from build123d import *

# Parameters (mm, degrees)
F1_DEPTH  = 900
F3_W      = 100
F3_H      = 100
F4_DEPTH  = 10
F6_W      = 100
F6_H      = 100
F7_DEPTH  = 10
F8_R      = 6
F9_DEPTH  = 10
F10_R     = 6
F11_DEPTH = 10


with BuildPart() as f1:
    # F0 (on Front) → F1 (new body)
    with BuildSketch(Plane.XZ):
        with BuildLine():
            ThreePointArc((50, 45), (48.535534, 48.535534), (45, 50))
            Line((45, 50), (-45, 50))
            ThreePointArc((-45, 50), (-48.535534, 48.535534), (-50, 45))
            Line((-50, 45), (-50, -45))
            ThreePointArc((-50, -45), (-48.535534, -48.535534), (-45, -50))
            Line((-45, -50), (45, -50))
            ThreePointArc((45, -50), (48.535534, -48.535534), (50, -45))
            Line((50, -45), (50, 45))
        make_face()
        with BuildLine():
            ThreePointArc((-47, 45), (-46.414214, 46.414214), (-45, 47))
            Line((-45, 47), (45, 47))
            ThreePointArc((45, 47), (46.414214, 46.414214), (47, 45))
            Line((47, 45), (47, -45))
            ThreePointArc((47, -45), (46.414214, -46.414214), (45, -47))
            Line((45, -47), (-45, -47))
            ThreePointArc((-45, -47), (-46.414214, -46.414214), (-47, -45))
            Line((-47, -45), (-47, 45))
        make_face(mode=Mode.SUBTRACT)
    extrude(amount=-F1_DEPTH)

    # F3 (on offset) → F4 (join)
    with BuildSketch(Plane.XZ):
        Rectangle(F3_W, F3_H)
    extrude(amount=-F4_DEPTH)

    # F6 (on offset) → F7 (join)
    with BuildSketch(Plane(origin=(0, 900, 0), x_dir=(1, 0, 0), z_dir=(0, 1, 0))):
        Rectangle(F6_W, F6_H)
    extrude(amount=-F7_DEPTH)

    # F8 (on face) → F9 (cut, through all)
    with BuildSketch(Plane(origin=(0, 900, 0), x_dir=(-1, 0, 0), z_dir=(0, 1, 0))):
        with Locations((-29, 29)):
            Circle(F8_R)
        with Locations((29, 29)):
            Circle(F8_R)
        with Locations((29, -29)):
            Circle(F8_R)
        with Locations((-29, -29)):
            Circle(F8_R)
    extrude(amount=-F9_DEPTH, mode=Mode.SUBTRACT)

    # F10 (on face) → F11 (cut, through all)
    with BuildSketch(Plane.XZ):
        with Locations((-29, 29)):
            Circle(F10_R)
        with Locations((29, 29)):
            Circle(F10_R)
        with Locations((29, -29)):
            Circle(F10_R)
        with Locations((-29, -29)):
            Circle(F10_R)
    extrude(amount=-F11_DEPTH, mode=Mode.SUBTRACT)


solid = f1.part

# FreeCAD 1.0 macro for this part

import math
import FreeCAD as App
import Part
import Sketcher
from FreeCAD import Vector
Q = App.Units.Quantity

doc = App.newDocument("Part")
body = doc.addObject("PartDesign::Body", "Body")

sketch1 = body.newObject("Sketcher::SketchObject", "Sketch")
sketch1.AttachmentSupport = (doc.getObject("XZ_Plane"), [""])
sketch1.MapMode = "FlatFace"
sketch1.addGeometry([
    Part.ArcOfCircle(Part.Circle(Vector(45, 45, 0), Vector(0, 0, 1), 5), math.radians(0), math.radians(90)),
    Part.LineSegment(Vector(45, 50, 0), Vector(-45, 50, 0)),
    Part.ArcOfCircle(Part.Circle(Vector(-45, 45, 0), Vector(0, 0, 1), 5), math.radians(90), math.radians(180)),
    Part.LineSegment(Vector(-50, 45, 0), Vector(-50, -45, 0)),
    Part.ArcOfCircle(Part.Circle(Vector(-45, -45, 0), Vector(0, 0, 1), 5), math.radians(180), math.radians(270)),
    Part.LineSegment(Vector(-45, -50, 0), Vector(45, -50, 0)),
    Part.ArcOfCircle(Part.Circle(Vector(45, -45, 0), Vector(0, 0, 1), 5), math.radians(-90), math.radians(0)),
    Part.LineSegment(Vector(50, -45, 0), Vector(50, 45, 0)),
    Part.LineSegment(Vector(-47, -45, 0), Vector(-47, 45, 0)),
    Part.ArcOfCircle(Part.Circle(Vector(-45, 45, 0), Vector(0, 0, 1), 2), math.radians(90), math.radians(180)),
    Part.LineSegment(Vector(-45, 47, 0), Vector(45, 47, 0)),
    Part.ArcOfCircle(Part.Circle(Vector(45, 45, 0), Vector(0, 0, 1), 2), math.radians(0), math.radians(90)),
    Part.LineSegment(Vector(47, 45, 0), Vector(47, -45, 0)),
    Part.ArcOfCircle(Part.Circle(Vector(45, -45, 0), Vector(0, 0, 1), 2), math.radians(-90), math.radians(0)),
    Part.LineSegment(Vector(45, -47, 0), Vector(-45, -47, 0)),
    Part.ArcOfCircle(Part.Circle(Vector(-45, -45, 0), Vector(0, 0, 1), 2), math.radians(180), math.radians(270)),
], False)
sketch1.addConstraint([
    Sketcher.Constraint("Tangent", 0, 2, 1, 1),
    Sketcher.Constraint("Tangent", 1, 2, 2, 1),
    Sketcher.Constraint("Tangent", 2, 2, 3, 1),
    Sketcher.Constraint("Tangent", 3, 2, 4, 1),
    Sketcher.Constraint("Tangent", 4, 2, 5, 1),
    Sketcher.Constraint("Tangent", 5, 2, 6, 1),
    Sketcher.Constraint("Tangent", 6, 2, 7, 1),
    Sketcher.Constraint("Tangent", 7, 2, 0, 1),
    Sketcher.Constraint("Tangent", 8, 2, 9, 2),
    Sketcher.Constraint("Tangent", 9, 1, 10, 1),
    Sketcher.Constraint("Tangent", 10, 2, 11, 2),
    Sketcher.Constraint("Tangent", 11, 1, 12, 1),
    Sketcher.Constraint("Tangent", 12, 2, 13, 2),
    Sketcher.Constraint("Tangent", 13, 1, 14, 1),
    Sketcher.Constraint("Tangent", 14, 2, 15, 2),
    Sketcher.Constraint("Tangent", 15, 1, 8, 1),
    Sketcher.Constraint("Horizontal", 1),
    Sketcher.Constraint("Vertical", 3),
    Sketcher.Constraint("Horizontal", 5),
    Sketcher.Constraint("Vertical", 7),
    Sketcher.Constraint("Vertical", 8),
    Sketcher.Constraint("Horizontal", 10),
    Sketcher.Constraint("Vertical", 12),
    Sketcher.Constraint("Horizontal", 14),
    Sketcher.Constraint("Coincident", 9, 3, 2, 3),
    Sketcher.Constraint("Coincident", 11, 3, 0, 3),
    Sketcher.Constraint("Coincident", 13, 3, 6, 3),
    Sketcher.Constraint("Equal", 0, 2),
    Sketcher.Constraint("Equal", 2, 4),
    Sketcher.Constraint("Equal", 4, 6),
    Sketcher.Constraint("Equal", 13, 15),
    Sketcher.Constraint("Symmetric", 0, 3, 4, 3, -1, 1),
    Sketcher.Constraint("Equal", 14, 3),
    Sketcher.Constraint("Radius", 0, Q("5 mm")),
    Sketcher.Constraint("Radius", 9, Q("1.999999 mm")),
    Sketcher.Constraint("DistanceX", 1, 2, 1, 1, Q("90 mm")),
])
pad1 = body.newObject("PartDesign::Pad", "Pad")
pad1.Profile = sketch1
pad1.Length = 900
pad1.Reversed = True

sketch2 = body.newObject("Sketcher::SketchObject", "Sketch001")
sketch2.AttachmentSupport = (doc.getObject("XZ_Plane"), [""])
sketch2.MapMode = "FlatFace"
sketch2.addGeometry([
    Part.LineSegment(Vector(-50, 50, 0), Vector(-50, -50, 0)),
    Part.LineSegment(Vector(-50, -50, 0), Vector(50, -50, 0)),
    Part.LineSegment(Vector(50, -50, 0), Vector(50, 50, 0)),
    Part.LineSegment(Vector(50, 50, 0), Vector(-50, 50, 0)),
], False)
sketch2.addConstraint([
    Sketcher.Constraint("Coincident", 0, 2, 1, 1),
    Sketcher.Constraint("Coincident", 1, 2, 2, 1),
    Sketcher.Constraint("Coincident", 2, 2, 3, 1),
    Sketcher.Constraint("Coincident", 3, 2, 0, 1),
    Sketcher.Constraint("Vertical", 0),
    Sketcher.Constraint("Horizontal", 1),
    Sketcher.Constraint("Vertical", 2),
    Sketcher.Constraint("Horizontal", 3),
    Sketcher.Constraint("Symmetric", 0, 2, 2, 2, -1, 1),
    Sketcher.Constraint("Equal", 3, 0),
    Sketcher.Constraint("DistanceX", 1, 1, 1, 2, Q("100 mm")),
])
pad2 = body.newObject("PartDesign::Pad", "Pad001")
pad2.Profile = sketch2
pad2.Length = 10
pad2.Reversed = True

sketch3 = body.newObject("Sketcher::SketchObject", "Sketch002")
sketch3.AttachmentSupport = (doc.getObject("XZ_Plane"), [""])
sketch3.MapMode = "FlatFace"
sketch3.AttachmentOffset = App.Placement(Vector(0, 0, -900), App.Rotation())
sketch3.addGeometry([
    Part.LineSegment(Vector(-50, -50, 0), Vector(-50, 50, 0)),
    Part.LineSegment(Vector(-50, 50, 0), Vector(50, 50, 0)),
    Part.LineSegment(Vector(50, 50, 0), Vector(50, -50, 0)),
    Part.LineSegment(Vector(50, -50, 0), Vector(-50, -50, 0)),
], False)
sketch3.addConstraint([
    Sketcher.Constraint("Coincident", 0, 2, 1, 1),
    Sketcher.Constraint("Coincident", 1, 2, 2, 1),
    Sketcher.Constraint("Coincident", 2, 2, 3, 1),
    Sketcher.Constraint("Coincident", 3, 2, 0, 1),
    Sketcher.Constraint("Vertical", 0),
    Sketcher.Constraint("Horizontal", 1),
    Sketcher.Constraint("Vertical", 2),
    Sketcher.Constraint("Horizontal", 3),
    Sketcher.Constraint("Symmetric", 0, 2, 2, 2, -1, 1),
    Sketcher.Constraint("Equal", 3, 0),
    Sketcher.Constraint("DistanceX", 1, 1, 1, 2, Q("100 mm")),
])
pad3 = body.newObject("PartDesign::Pad", "Pad002")
pad3.Profile = sketch3
pad3.Length = 10

sketch4 = body.newObject("Sketcher::SketchObject", "Sketch003")
sketch4.AttachmentSupport = (doc.getObject("XZ_Plane"), [""])
sketch4.MapMode = "FlatFace"
sketch4.AttachmentOffset = App.Placement(Vector(0, 0, -900), App.Rotation())
sketch4.addGeometry([
    Part.Circle(Vector(29, 29, 0), Vector(0, 0, 1), 6),
    Part.Circle(Vector(-29, 29, 0), Vector(0, 0, 1), 6),
    Part.Circle(Vector(-29, -29, 0), Vector(0, 0, 1), 6),
    Part.Circle(Vector(29, -29, 0), Vector(0, 0, 1), 6),
], False)
sketch4.addConstraint([
    Sketcher.Constraint("Equal", 0, 1),
    Sketcher.Constraint("Equal", 1, 2),
    Sketcher.Constraint("Equal", 2, 3),
    Sketcher.Constraint("Symmetric", 0, 3, 2, 3, -1, 1),
    Sketcher.Constraint("Symmetric", 1, 3, 3, 3, -1, 1),
    Sketcher.Constraint("Symmetric", 0, 3, 1, 3, -2),
    Sketcher.Constraint("Diameter", 0, Q("12 mm")),
    Sketcher.Constraint("DistanceX", -1, 1, 0, 3, Q("29 mm")),
    Sketcher.Constraint("DistanceY", -1, 1, 0, 3, Q("29 mm")),
])
pocket1 = body.newObject("PartDesign::Pocket", "Pocket")
pocket1.Profile = sketch4
pocket1.Length = 10
pocket1.Reversed = True

sketch5 = body.newObject("Sketcher::SketchObject", "Sketch004")
sketch5.AttachmentSupport = (doc.getObject("XZ_Plane"), [""])
sketch5.MapMode = "FlatFace"
sketch5.addGeometry([
    Part.Circle(Vector(-29, 29, 0), Vector(0, 0, 1), 6),
    Part.Circle(Vector(29, 29, 0), Vector(0, 0, 1), 6),
    Part.Circle(Vector(29, -29, 0), Vector(0, 0, 1), 6),
    Part.Circle(Vector(-29, -29, 0), Vector(0, 0, 1), 6),
], False)
sketch5.addConstraint([
    Sketcher.Constraint("Equal", 0, 1),
    Sketcher.Constraint("Equal", 1, 2),
    Sketcher.Constraint("Equal", 2, 3),
    Sketcher.Constraint("Symmetric", 0, 3, 2, 3, -1, 1),
    Sketcher.Constraint("Symmetric", 1, 3, 3, 3, -1, 1),
    Sketcher.Constraint("Symmetric", 0, 3, 1, 3, -2),
    Sketcher.Constraint("Diameter", 0, Q("12 mm")),
    Sketcher.Constraint("DistanceX", 0, 3, -1, 1, Q("29 mm")),
    Sketcher.Constraint("DistanceY", -1, 1, 0, 3, Q("29 mm")),
])
pocket2 = body.newObject("PartDesign::Pocket", "Pocket001")
pocket2.Profile = sketch5
pocket2.Type = "ThroughAll"

doc.recompute()
